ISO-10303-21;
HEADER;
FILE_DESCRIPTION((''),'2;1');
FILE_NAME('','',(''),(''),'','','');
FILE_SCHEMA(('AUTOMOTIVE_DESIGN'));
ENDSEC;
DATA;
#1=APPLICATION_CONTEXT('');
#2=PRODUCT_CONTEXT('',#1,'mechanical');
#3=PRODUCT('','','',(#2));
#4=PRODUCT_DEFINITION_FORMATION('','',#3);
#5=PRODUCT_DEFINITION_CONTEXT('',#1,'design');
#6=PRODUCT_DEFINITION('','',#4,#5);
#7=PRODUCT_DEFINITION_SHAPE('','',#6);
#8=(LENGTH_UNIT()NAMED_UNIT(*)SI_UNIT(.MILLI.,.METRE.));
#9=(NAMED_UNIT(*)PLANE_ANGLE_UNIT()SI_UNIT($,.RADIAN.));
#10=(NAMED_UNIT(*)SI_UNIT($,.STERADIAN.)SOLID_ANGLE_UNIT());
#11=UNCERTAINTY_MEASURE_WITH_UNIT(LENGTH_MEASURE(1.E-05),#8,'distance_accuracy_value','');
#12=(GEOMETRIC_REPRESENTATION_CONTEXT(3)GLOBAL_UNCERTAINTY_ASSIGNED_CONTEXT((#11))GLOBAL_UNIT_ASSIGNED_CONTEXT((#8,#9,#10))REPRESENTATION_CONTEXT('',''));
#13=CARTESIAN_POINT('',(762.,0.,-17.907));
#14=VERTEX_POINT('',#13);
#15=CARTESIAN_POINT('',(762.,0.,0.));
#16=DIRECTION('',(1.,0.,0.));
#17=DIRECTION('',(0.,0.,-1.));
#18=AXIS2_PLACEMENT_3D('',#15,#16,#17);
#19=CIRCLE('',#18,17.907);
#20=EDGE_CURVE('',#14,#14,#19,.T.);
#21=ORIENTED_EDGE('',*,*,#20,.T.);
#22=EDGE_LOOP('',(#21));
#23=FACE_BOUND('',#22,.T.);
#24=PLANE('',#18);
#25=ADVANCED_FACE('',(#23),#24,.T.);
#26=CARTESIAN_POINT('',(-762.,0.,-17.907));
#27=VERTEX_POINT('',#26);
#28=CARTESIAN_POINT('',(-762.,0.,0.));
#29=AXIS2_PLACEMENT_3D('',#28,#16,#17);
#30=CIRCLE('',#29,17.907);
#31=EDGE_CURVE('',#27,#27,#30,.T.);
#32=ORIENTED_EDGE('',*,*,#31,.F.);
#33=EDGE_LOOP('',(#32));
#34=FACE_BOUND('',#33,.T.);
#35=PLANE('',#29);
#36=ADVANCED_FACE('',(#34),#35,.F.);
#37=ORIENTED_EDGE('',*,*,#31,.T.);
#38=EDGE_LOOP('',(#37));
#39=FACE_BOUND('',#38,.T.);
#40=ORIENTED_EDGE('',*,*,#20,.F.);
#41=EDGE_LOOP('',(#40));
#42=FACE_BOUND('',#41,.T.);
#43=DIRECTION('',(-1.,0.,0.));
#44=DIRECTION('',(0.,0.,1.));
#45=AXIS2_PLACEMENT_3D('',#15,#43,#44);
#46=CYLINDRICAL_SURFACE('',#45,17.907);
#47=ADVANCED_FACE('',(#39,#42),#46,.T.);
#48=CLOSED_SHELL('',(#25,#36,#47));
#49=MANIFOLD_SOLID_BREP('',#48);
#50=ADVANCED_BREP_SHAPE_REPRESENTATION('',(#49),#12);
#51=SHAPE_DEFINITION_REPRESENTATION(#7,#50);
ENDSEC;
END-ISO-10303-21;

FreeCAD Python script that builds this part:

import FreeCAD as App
import Part
import Sketcher

V = App.Vector
Q = App.Units.Quantity

doc = App.newDocument("Part")
params = doc.addObject("Spreadsheet::Sheet", "Params")
for row, (alias, value) in enumerate([
    ("sketch1_diameter", "1.41 in"),
    ("pad1_length", "60 in"),
], start=1):
    params.set(f"A{row}", alias)
    params.set(f"B{row}", "=" + value)
    params.setAlias(f"B{row}", alias)

body = doc.addObject("PartDesign::Body", "Body")

sketch1 = body.newObject("Sketcher::SketchObject", "Sketch")
sketch1.AttachmentSupport = (doc.getObject("YZ_Plane"), [""])
sketch1.MapMode = "FlatFace"
sketch1.addGeometry(Part.Circle(V(0, 0, 0), V(0, 0, 1), 17.907), False)
sketch1.addConstraint(Sketcher.Constraint("Coincident", 0, 3, -1, 1))
sketch1.addConstraint(Sketcher.Constraint("Diameter", 0, Q("1.41 in")))
sketch1.setExpression("Constraints[1]", "Params.sketch1_diameter")
pad1 = body.newObject("PartDesign::Pad", "Pad")
pad1.Profile = sketch1
pad1.setExpression("Length", "Params.pad1_length")
pad1.Midplane = True

doc.recompute()
